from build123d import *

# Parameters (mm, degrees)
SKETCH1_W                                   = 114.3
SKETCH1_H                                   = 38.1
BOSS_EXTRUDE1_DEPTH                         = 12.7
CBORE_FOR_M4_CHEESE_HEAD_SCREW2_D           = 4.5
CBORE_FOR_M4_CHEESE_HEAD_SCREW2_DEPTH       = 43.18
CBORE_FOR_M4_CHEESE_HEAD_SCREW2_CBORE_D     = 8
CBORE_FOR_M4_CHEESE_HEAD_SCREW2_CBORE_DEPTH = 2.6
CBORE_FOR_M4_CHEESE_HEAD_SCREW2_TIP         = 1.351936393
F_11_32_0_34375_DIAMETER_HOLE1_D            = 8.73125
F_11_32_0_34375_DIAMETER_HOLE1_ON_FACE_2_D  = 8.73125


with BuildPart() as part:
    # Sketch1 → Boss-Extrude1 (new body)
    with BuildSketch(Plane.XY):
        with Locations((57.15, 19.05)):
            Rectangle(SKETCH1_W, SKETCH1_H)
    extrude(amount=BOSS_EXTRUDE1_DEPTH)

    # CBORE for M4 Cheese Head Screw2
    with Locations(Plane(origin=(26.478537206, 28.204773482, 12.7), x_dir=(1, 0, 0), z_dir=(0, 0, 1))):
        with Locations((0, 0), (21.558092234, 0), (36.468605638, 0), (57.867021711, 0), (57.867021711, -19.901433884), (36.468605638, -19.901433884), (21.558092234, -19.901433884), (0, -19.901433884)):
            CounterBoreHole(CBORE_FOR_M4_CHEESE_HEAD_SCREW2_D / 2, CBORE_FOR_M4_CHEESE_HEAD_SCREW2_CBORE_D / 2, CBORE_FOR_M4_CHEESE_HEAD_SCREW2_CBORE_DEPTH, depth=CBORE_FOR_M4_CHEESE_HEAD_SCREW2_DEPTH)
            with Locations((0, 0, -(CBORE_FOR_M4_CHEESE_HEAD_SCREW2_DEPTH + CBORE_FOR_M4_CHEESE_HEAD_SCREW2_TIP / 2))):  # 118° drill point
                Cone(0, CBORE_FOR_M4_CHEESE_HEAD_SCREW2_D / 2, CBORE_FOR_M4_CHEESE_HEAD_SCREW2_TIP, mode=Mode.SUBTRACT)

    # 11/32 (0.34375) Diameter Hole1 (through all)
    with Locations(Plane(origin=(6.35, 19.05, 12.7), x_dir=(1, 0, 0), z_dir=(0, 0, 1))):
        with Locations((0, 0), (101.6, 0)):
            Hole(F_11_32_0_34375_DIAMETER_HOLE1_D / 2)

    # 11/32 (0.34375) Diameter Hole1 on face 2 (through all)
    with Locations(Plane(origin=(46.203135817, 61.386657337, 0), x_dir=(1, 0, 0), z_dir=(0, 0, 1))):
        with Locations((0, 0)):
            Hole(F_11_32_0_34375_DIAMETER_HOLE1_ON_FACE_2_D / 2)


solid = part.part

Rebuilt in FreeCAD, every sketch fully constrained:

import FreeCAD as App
import Part
import Sketcher

V = App.Vector
Q = App.Units.Quantity


def add_polygon(sketch, points):
    """Adds a closed chain of lines whose ends are joined by coincident constraints."""
    first, n = sketch.GeometryCount, len(points)
    for a, b in zip(points, points[1:] + points[:1]):
        sketch.addGeometry(Part.LineSegment(App.Vector(*a, 0), App.Vector(*b, 0)), False)
    for i in range(n):
        sketch.addConstraint(Sketcher.Constraint("Coincident", first + i, 2, first + (i + 1) % n, 1))

doc = App.newDocument("Part")
body = doc.addObject("PartDesign::Body", "Body")

# Sketch on XY plane
sketch1 = doc.addObject("Sketcher::SketchObject", "Sketch")
body.addObject(sketch1)
sketch1.AttachmentSupport = (doc.XY_Plane, [""])
sketch1.MapMode = "FlatFace"
add_polygon(sketch1, [(0, 38), (0, 0), (114, 0), (114, 38)])  # lines 0-3
sketch1.addConstraint(Sketcher.Constraint("Vertical", 0))
sketch1.addConstraint(Sketcher.Constraint("Horizontal", 1))
sketch1.addConstraint(Sketcher.Constraint("Vertical", 2))
sketch1.addConstraint(Sketcher.Constraint("Horizontal", 3))
sketch1.addConstraint(Sketcher.Constraint("Coincident", 0, 2, -1, 1))
sketch1.addConstraint(Sketcher.Constraint("DistanceX", 1, 1, 1, 2, Q("4.5 in")))
sketch1.addConstraint(Sketcher.Constraint("DistanceY", 0, 2, 0, 1, Q("1.5 in")))
pad1 = doc.addObject("PartDesign::Pad", "Pad")
body.addObject(pad1)
pad1.Profile = sketch1
pad1.Length = Q("0.5 in")

# Sketch on XY plane
sketch2 = doc.addObject("Sketcher::SketchObject", "Sketch001")
body.addObject(sketch2)
sketch2.AttachmentSupport = (doc.XY_Plane, [""])
sketch2.MapMode = "FlatFace"
sketch2.AttachmentOffset = App.Placement(V(0, 0, 0.5 * 25.4), App.Rotation())
sketch2.addGeometry(Part.Circle(V(26.5, 28.2, 0), V(0, 0, 1), 2.2), False)
sketch2.addGeometry(Part.Circle(V(48, 28.2, 0), V(0, 0, 1), 2.2), False)
sketch2.addGeometry(Part.Circle(V(62.9, 28.2, 0), V(0, 0, 1), 2.2), False)
sketch2.addGeometry(Part.Circle(V(84.3, 28.2, 0), V(0, 0, 1), 2.2), False)
sketch2.addGeometry(Part.Circle(V(84.3, 8.3, 0), V(0, 0, 1), 2.2), False)
sketch2.addGeometry(Part.Circle(V(62.9, 8.3, 0), V(0, 0, 1), 2.2), False)
sketch2.addGeometry(Part.Circle(V(48, 8.3, 0), V(0, 0, 1), 2.2), False)
sketch2.addGeometry(Part.Circle(V(26.5, 8.3, 0), V(0, 0, 1), 2.2), False)
sketch2.addConstraint(Sketcher.Constraint("Equal", 0, 1))
sketch2.addConstraint(Sketcher.Constraint("Equal", 1, 2))
sketch2.addConstraint(Sketcher.Constraint("Equal", 2, 3))
sketch2.addConstraint(Sketcher.Constraint("Equal", 3, 4))
sketch2.addConstraint(Sketcher.Constraint("Equal", 4, 5))
sketch2.addConstraint(Sketcher.Constraint("Equal", 5, 6))
sketch2.addConstraint(Sketcher.Constraint("Equal", 6, 7))
sketch2.addConstraint(Sketcher.Constraint("Horizontal", 0, 3, 1, 3))
sketch2.addConstraint(Sketcher.Constraint("Horizontal", 1, 3, 2, 3))
sketch2.addConstraint(Sketcher.Constraint("Horizontal", 2, 3, 3, 3))
sketch2.addConstraint(Sketcher.Constraint("Horizontal", 4, 3, 5, 3))
sketch2.addConstraint(Sketcher.Constraint("Horizontal", 5, 3, 6, 3))
sketch2.addConstraint(Sketcher.Constraint("Horizontal", 6, 3, 7, 3))
sketch2.addConstraint(Sketcher.Constraint("Vertical", 3, 3, 4, 3))
sketch2.addConstraint(Sketcher.Constraint("Vertical", 2, 3, 5, 3))
sketch2.addConstraint(Sketcher.Constraint("Vertical", 1, 3, 6, 3))
sketch2.addConstraint(Sketcher.Constraint("Vertical", 0, 3, 7, 3))
sketch2.addConstraint(Sketcher.Constraint("Diameter", 0, Q("4.5 mm")))
sketch2.addConstraint(Sketcher.Constraint("DistanceX", -1, 1, 1, 3, Q("48.036629 mm")))
sketch2.addConstraint(Sketcher.Constraint("DistanceX", -1, 1, 3, 3, Q("84.345559 mm")))
sketch2.addConstraint(Sketcher.Constraint("DistanceY", -1, 1, 4, 3, Q("8.30334 mm")))
sketch2.addConstraint(Sketcher.Constraint("DistanceX", 0, 3, 3, 3, Q("57.867022 mm")))
sketch2.addConstraint(Sketcher.Constraint("DistanceY", -1, 1, 0, 3, Q("28.204773 mm")))
sketch2.addConstraint(Sketcher.Constraint("DistanceX", -1, 1, 2, 3, Q("62.947143 mm")))
doc.recompute()
hole = doc.addObject("PartDesign::Hole", "Hole")
body.addObject(hole)
hole.Profile = sketch2
hole.ThreadType = "None"
hole.Diameter = 4.5
hole.DepthType = "Dimension"
hole.Depth = Q("1.7 in")
hole.DrillPoint = "Angled"
hole.DrillPointAngle = 118
hole.HoleCutType = "Counterbore"
hole.HoleCutDiameter = 8
hole.HoleCutDepth = 2.6

# Sketch on XY plane
sketch3 = doc.addObject("Sketcher::SketchObject", "Sketch002")
body.addObject(sketch3)
sketch3.AttachmentSupport = (doc.XY_Plane, [""])
sketch3.MapMode = "FlatFace"
sketch3.AttachmentOffset = App.Placement(V(0, 0, 0.5 * 25.4), App.Rotation())
sketch3.addGeometry(Part.Circle(V(6.3, 19.1, 0), V(0, 0, 1), 4.4), False)
sketch3.addGeometry(Part.Circle(V(108, 19.1, 0), V(0, 0, 1), 4.4), False)
sketch3.addConstraint(Sketcher.Constraint("Equal", 0, 1))
sketch3.addConstraint(Sketcher.Constraint("Horizontal", 0, 3, 1, 3))
sketch3.addConstraint(Sketcher.Constraint("Diameter", 0, Q("0.34375 in")))
sketch3.addConstraint(Sketcher.Constraint("DistanceX", 0, 3, 1, 3, Q("4 in")))
sketch3.addConstraint(Sketcher.Constraint("DistanceX", -1, 1, 0, 3, Q("0.25 in")))
sketch3.addConstraint(Sketcher.Constraint("DistanceY", -1, 1, 0, 3, Q("0.75 in")))
doc.recompute()
hole2 = doc.addObject("PartDesign::Hole", "Hole001")
body.addObject(hole2)
hole2.Profile = sketch3
hole2.ThreadType = "None"
hole2.Diameter = Q("0.34375 in")
hole2.DepthType = "ThroughAll"

# Sketch on XY plane
sketch4 = doc.addObject("Sketcher::SketchObject", "Sketch003")
body.addObject(sketch4)
sketch4.AttachmentSupport = (doc.XY_Plane, [""])
sketch4.MapMode = "FlatFace"
sketch4.addGeometry(Part.Circle(V(46.2, 61.4, 0), V(0, 0, 1), 4.4), False)
sketch4.addConstraint(Sketcher.Constraint("Diameter", 0, Q("0.34375 in")))
sketch4.addConstraint(Sketcher.Constraint("DistanceX", -1, 1, 0, 3, Q("46.203136 mm")))
sketch4.addConstraint(Sketcher.Constraint("DistanceY", -1, 1, 0, 3, Q("61.386657 mm")))
doc.recompute()
hole3 = doc.addObject("PartDesign::Hole", "Hole002")
body.addObject(hole3)
hole3.Profile = sketch4
hole3.ThreadType = "None"
hole3.Diameter = Q("0.34375 in")
hole3.DepthType = "ThroughAll"

doc.recompute()
